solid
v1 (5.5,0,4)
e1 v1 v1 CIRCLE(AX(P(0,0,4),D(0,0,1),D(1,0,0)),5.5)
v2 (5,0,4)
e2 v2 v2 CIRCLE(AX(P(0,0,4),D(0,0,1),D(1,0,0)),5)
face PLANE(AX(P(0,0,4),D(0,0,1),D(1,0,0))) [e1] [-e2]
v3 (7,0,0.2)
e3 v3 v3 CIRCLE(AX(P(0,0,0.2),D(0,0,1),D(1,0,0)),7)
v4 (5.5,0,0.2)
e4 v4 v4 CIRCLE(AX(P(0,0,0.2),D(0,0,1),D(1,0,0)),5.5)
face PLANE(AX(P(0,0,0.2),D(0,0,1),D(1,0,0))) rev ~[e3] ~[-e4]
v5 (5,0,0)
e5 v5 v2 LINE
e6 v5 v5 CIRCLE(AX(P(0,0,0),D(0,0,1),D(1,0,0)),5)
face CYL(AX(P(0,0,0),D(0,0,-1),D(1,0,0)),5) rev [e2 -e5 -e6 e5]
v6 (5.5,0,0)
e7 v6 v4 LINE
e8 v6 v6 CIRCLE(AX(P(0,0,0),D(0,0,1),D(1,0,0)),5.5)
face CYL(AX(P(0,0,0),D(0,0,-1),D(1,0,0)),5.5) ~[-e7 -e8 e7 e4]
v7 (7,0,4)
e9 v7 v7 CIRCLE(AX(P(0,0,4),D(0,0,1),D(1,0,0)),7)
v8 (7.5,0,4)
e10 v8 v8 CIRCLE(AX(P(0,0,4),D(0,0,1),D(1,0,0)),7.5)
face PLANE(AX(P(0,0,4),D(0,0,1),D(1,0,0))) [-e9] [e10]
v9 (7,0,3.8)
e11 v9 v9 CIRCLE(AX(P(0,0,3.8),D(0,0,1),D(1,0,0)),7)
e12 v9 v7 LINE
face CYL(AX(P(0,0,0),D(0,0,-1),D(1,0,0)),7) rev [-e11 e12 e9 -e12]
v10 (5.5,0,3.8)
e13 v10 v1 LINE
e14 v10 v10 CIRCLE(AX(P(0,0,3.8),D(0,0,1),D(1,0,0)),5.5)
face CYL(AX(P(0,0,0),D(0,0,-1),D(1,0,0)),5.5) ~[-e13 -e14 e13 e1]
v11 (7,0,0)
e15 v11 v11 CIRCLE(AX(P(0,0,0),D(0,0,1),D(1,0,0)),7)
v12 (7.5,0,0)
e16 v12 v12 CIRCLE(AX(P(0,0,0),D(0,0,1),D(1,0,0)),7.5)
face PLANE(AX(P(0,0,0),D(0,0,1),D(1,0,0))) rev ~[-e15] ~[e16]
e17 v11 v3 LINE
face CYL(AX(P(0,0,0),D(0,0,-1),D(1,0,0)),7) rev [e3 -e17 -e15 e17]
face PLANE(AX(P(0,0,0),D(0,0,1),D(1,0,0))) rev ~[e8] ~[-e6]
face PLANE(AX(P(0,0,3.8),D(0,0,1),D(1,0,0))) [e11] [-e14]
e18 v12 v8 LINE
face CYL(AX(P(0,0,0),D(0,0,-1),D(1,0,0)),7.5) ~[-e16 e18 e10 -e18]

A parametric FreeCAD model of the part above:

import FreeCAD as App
import Part
import Sketcher

V = App.Vector

doc = App.newDocument("Part")
params = doc.addObject("Spreadsheet::Sheet", "Params")
for row, (alias, value) in enumerate([
    ("sketch1_diameter", "15 mm"),
    ("sketch1_diameter2", "10 mm"),
    ("sketch1_diameter3", "14 mm"),
    ("sketch1_diameter4", "11 mm"),
    ("pad1_length", "4 mm"),
    ("sketch2_diameter", "14 mm"),
    ("sketch2_diameter2", "11 mm"),
    ("pad2_length", "3.6 mm"),
], start=1):
    params.set(f"A{row}", alias)
    params.set(f"B{row}", "=" + value)
    params.setAlias(f"B{row}", alias)

body = doc.addObject("PartDesign::Body", "Body")
body.AllowCompound = True

sketch1 = body.newObject("Sketcher::SketchObject", "Sketch")
sketch1.AttachmentSupport = (doc.getObject("XY_Plane"), [""])
sketch1.MapMode = "FlatFace"
sketch1.addGeometry(Part.Circle(V(0, 0, 0), V(0, 0, 1), 8), False)
sketch1.addGeometry(Part.Circle(V(0, 0, 0), V(0, 0, 1), 7), False)
sketch1.addGeometry(Part.Circle(V(0, 0, 0), V(0, 0, 1), 6), False)
sketch1.addGeometry(Part.Circle(V(0, 0, 0), V(0, 0, 1), 5), False)
sketch1.addConstraint(Sketcher.Constraint("Coincident", 0, 3, -1, 1))
sketch1.addConstraint(Sketcher.Constraint("Coincident", 1, 3, -1, 1))
sketch1.addConstraint(Sketcher.Constraint("Coincident", 2, 3, -1, 1))
sketch1.addConstraint(Sketcher.Constraint("Coincident", 3, 3, -1, 1))
sketch1.addConstraint(Sketcher.Constraint("Diameter", 0, 15.0))
sketch1.addConstraint(Sketcher.Constraint("Diameter", 3, 10.0))
sketch1.addConstraint(Sketcher.Constraint("Diameter", 1, 14.0))
sketch1.addConstraint(Sketcher.Constraint("Diameter", 2, 11.0))
sketch1.setExpression("Constraints[4]", "Params.sketch1_diameter")
sketch1.setExpression("Constraints[5]", "Params.sketch1_diameter2")
sketch1.setExpression("Constraints[6]", "Params.sketch1_diameter3")
sketch1.setExpression("Constraints[7]", "Params.sketch1_diameter4")
pad1 = body.newObject("PartDesign::Pad", "Pad")
pad1.Profile = sketch1
pad1.setExpression("Length", "Params.pad1_length")

sketch2 = body.newObject("Sketcher::SketchObject", "Sketch001")
sketch2.AttachmentSupport = (doc.getObject("XY_Plane"), [""])
sketch2.MapMode = "FlatFace"
sketch2.AttachmentOffset = App.Placement(V(0, 0, 0.2), App.Rotation())
sketch2.addGeometry(Part.Circle(V(0, 0, 0), V(0, 0, 1), 7), False)
sketch2.addGeometry(Part.Circle(V(0, 0, 0), V(0, 0, 1), 6), False)
sketch2.addConstraint(Sketcher.Constraint("Coincident", 0, 3, -1, 1))
sketch2.addConstraint(Sketcher.Constraint("Coincident", 1, 3, -1, 1))
sketch2.addConstraint(Sketcher.Constraint("Diameter", 0, 14.0))
sketch2.addConstraint(Sketcher.Constraint("Diameter", 1, 11.0))
sketch2.setExpression("Constraints[2]", "Params.sketch2_diameter")
sketch2.setExpression("Constraints[3]", "Params.sketch2_diameter2")
pad2 = body.newObject("PartDesign::Pad", "Pad001")
pad2.Profile = sketch2
pad2.setExpression("Length", "Params.pad2_length")

doc.recompute()
